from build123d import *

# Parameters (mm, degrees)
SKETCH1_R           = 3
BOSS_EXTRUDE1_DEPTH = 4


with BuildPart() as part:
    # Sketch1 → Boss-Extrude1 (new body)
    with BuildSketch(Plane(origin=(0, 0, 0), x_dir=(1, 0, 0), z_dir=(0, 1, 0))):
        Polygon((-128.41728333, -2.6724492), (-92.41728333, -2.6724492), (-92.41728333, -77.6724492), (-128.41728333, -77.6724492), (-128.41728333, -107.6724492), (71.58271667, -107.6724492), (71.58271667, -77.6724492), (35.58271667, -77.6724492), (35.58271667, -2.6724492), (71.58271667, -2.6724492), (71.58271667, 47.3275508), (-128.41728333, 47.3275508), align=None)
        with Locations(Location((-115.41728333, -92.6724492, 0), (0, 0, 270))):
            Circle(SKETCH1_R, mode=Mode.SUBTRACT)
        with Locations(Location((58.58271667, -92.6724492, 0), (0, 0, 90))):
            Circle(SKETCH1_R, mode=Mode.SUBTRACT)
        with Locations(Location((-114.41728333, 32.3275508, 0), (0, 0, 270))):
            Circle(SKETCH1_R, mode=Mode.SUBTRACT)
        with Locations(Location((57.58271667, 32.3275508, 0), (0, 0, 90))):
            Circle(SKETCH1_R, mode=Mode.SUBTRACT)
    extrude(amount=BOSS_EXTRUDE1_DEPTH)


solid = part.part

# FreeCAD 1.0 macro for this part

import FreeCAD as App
import Part
import Sketcher

V = App.Vector

doc = App.newDocument("Part")
body = doc.addObject("PartDesign::Body", "Body")

sketch1 = doc.addObject("Sketcher::SketchObject", "Sketch")
body.addObject(sketch1)
sketch1.AttachmentSupport = (doc.XZ_Plane, [""])
sketch1.MapMode = "FlatFace"
sketch1.addGeometry([
    Part.LineSegment(V(-128.417283, 2.672449, 0), V(-92.417283, 2.672449, 0)),
    Part.LineSegment(V(-92.417283, 2.672449, 0), V(-92.417283, 77.672449, 0)),
    Part.LineSegment(V(-92.417283, 77.672449, 0), V(-128.417283, 77.672449, 0)),
    Part.LineSegment(V(-128.417283, 77.672449, 0), V(-128.417283, 107.672449, 0)),
    Part.LineSegment(V(-128.417283, 107.672449, 0), V(71.582717, 107.672449, 0)),
    Part.LineSegment(V(71.582717, 107.672449, 0), V(71.582717, 77.672449, 0)),
    Part.LineSegment(V(71.582717, 77.672449, 0), V(35.582717, 77.672449, 0)),
    Part.LineSegment(V(35.582717, 77.672449, 0), V(35.582717, 2.672449, 0)),
    Part.LineSegment(V(35.582717, 2.672449, 0), V(71.582717, 2.672449, 0)),
    Part.LineSegment(V(71.582717, 2.672449, 0), V(71.582717, -47.327551, 0)),
    Part.LineSegment(V(71.582717, -47.327551, 0), V(-128.417283, -47.327551, 0)),
    Part.LineSegment(V(-128.417283, -47.327551, 0), V(-128.417283, 2.672449, 0)),
    Part.Circle(V(-115.417283, 92.672449, 0), V(0, 0, 1), 3),
    Part.Circle(V(58.582717, 92.672449, 0), V(0, 0, 1), 3),
    Part.Circle(V(-114.417283, -32.327551, 0), V(0, 0, 1), 3),
    Part.Circle(V(57.582717, -32.327551, 0), V(0, 0, 1), 3),
], False)
sketch1.addConstraint([
    Sketcher.Constraint("Coincident", 0, 2, 1, 1),
    Sketcher.Constraint("Coincident", 1, 2, 2, 1),
    Sketcher.Constraint("Coincident", 2, 2, 3, 1),
    Sketcher.Constraint("Coincident", 3, 2, 4, 1),
    Sketcher.Constraint("Coincident", 4, 2, 5, 1),
    Sketcher.Constraint("Coincident", 5, 2, 6, 1),
    Sketcher.Constraint("Coincident", 6, 2, 7, 1),
    Sketcher.Constraint("Coincident", 7, 2, 8, 1),
    Sketcher.Constraint("Coincident", 8, 2, 9, 1),
    Sketcher.Constraint("Coincident", 9, 2, 10, 1),
    Sketcher.Constraint("Coincident", 10, 2, 11, 1),
    Sketcher.Constraint("Coincident", 11, 2, 0, 1),
    Sketcher.Constraint("Horizontal", 0),
    Sketcher.Constraint("Vertical", 1),
    Sketcher.Constraint("Horizontal", 2),
    Sketcher.Constraint("Vertical", 3),
    Sketcher.Constraint("Horizontal", 4),
    Sketcher.Constraint("Vertical", 5),
    Sketcher.Constraint("Horizontal", 6),
    Sketcher.Constraint("Vertical", 7),
    Sketcher.Constraint("Horizontal", 8),
    Sketcher.Constraint("Vertical", 9),
    Sketcher.Constraint("Horizontal", 10),
    Sketcher.Constraint("Vertical", 11),
    Sketcher.Constraint("Equal", 12, 13),
    Sketcher.Constraint("Equal", 13, 14),
    Sketcher.Constraint("Equal", 14, 15),
    Sketcher.Constraint("Horizontal", 12, 3, 13, 3),
    Sketcher.Constraint("Horizontal", 14, 3, 15, 3),
    Sketcher.Constraint("Horizontal", 2, 2, 5, 2),
    Sketcher.Constraint("Horizontal", 0, 2, 7, 2),
    Sketcher.Constraint("Vertical", 5, 2, 8, 2),
    Sketcher.Constraint("Vertical", 3, 2, 10, 2),
    Sketcher.Constraint("Equal", 2, 6),
    Sketcher.Constraint("Diameter", 12, 6.0),
    Sketcher.Constraint("DistanceX", 0, 1, 0, 2, 36.0),
    Sketcher.Constraint("DistanceX", 4, 1, 4, 2, 200.0),
    Sketcher.Constraint("DistanceY", 1, 1, 1, 2, 75.0),
    Sketcher.Constraint("DistanceY", 3, 1, 3, 2, 30.0),
    Sketcher.Constraint("DistanceY", 9, 2, 9, 1, 50.0),
    Sketcher.Constraint("DistanceX", 12, 3, 13, 3, 174.0),
    Sketcher.Constraint("DistanceX", 12, 3, 14, 3, 1.0),
    Sketcher.Constraint("DistanceY", 14, 3, 12, 3, 125.0),
    Sketcher.Constraint("DistanceX", 15, 3, 13, 3, 1.0),
    Sketcher.Constraint("DistanceX", 14, 3, 0, 2, 22.0),
    Sketcher.Constraint("DistanceY", 14, 3, 0, 2, 35.0),
    Sketcher.Constraint("DistanceY", -1, 1, 12, 3, 92.672449),
    Sketcher.Constraint("DistanceX", 12, 3, -1, 1, 115.417283),
])
pad1 = doc.addObject("PartDesign::Pad", "Pad")
body.addObject(pad1)
pad1.Profile = sketch1
pad1.Length = 4
pad1.Reversed = True

doc.recompute()
